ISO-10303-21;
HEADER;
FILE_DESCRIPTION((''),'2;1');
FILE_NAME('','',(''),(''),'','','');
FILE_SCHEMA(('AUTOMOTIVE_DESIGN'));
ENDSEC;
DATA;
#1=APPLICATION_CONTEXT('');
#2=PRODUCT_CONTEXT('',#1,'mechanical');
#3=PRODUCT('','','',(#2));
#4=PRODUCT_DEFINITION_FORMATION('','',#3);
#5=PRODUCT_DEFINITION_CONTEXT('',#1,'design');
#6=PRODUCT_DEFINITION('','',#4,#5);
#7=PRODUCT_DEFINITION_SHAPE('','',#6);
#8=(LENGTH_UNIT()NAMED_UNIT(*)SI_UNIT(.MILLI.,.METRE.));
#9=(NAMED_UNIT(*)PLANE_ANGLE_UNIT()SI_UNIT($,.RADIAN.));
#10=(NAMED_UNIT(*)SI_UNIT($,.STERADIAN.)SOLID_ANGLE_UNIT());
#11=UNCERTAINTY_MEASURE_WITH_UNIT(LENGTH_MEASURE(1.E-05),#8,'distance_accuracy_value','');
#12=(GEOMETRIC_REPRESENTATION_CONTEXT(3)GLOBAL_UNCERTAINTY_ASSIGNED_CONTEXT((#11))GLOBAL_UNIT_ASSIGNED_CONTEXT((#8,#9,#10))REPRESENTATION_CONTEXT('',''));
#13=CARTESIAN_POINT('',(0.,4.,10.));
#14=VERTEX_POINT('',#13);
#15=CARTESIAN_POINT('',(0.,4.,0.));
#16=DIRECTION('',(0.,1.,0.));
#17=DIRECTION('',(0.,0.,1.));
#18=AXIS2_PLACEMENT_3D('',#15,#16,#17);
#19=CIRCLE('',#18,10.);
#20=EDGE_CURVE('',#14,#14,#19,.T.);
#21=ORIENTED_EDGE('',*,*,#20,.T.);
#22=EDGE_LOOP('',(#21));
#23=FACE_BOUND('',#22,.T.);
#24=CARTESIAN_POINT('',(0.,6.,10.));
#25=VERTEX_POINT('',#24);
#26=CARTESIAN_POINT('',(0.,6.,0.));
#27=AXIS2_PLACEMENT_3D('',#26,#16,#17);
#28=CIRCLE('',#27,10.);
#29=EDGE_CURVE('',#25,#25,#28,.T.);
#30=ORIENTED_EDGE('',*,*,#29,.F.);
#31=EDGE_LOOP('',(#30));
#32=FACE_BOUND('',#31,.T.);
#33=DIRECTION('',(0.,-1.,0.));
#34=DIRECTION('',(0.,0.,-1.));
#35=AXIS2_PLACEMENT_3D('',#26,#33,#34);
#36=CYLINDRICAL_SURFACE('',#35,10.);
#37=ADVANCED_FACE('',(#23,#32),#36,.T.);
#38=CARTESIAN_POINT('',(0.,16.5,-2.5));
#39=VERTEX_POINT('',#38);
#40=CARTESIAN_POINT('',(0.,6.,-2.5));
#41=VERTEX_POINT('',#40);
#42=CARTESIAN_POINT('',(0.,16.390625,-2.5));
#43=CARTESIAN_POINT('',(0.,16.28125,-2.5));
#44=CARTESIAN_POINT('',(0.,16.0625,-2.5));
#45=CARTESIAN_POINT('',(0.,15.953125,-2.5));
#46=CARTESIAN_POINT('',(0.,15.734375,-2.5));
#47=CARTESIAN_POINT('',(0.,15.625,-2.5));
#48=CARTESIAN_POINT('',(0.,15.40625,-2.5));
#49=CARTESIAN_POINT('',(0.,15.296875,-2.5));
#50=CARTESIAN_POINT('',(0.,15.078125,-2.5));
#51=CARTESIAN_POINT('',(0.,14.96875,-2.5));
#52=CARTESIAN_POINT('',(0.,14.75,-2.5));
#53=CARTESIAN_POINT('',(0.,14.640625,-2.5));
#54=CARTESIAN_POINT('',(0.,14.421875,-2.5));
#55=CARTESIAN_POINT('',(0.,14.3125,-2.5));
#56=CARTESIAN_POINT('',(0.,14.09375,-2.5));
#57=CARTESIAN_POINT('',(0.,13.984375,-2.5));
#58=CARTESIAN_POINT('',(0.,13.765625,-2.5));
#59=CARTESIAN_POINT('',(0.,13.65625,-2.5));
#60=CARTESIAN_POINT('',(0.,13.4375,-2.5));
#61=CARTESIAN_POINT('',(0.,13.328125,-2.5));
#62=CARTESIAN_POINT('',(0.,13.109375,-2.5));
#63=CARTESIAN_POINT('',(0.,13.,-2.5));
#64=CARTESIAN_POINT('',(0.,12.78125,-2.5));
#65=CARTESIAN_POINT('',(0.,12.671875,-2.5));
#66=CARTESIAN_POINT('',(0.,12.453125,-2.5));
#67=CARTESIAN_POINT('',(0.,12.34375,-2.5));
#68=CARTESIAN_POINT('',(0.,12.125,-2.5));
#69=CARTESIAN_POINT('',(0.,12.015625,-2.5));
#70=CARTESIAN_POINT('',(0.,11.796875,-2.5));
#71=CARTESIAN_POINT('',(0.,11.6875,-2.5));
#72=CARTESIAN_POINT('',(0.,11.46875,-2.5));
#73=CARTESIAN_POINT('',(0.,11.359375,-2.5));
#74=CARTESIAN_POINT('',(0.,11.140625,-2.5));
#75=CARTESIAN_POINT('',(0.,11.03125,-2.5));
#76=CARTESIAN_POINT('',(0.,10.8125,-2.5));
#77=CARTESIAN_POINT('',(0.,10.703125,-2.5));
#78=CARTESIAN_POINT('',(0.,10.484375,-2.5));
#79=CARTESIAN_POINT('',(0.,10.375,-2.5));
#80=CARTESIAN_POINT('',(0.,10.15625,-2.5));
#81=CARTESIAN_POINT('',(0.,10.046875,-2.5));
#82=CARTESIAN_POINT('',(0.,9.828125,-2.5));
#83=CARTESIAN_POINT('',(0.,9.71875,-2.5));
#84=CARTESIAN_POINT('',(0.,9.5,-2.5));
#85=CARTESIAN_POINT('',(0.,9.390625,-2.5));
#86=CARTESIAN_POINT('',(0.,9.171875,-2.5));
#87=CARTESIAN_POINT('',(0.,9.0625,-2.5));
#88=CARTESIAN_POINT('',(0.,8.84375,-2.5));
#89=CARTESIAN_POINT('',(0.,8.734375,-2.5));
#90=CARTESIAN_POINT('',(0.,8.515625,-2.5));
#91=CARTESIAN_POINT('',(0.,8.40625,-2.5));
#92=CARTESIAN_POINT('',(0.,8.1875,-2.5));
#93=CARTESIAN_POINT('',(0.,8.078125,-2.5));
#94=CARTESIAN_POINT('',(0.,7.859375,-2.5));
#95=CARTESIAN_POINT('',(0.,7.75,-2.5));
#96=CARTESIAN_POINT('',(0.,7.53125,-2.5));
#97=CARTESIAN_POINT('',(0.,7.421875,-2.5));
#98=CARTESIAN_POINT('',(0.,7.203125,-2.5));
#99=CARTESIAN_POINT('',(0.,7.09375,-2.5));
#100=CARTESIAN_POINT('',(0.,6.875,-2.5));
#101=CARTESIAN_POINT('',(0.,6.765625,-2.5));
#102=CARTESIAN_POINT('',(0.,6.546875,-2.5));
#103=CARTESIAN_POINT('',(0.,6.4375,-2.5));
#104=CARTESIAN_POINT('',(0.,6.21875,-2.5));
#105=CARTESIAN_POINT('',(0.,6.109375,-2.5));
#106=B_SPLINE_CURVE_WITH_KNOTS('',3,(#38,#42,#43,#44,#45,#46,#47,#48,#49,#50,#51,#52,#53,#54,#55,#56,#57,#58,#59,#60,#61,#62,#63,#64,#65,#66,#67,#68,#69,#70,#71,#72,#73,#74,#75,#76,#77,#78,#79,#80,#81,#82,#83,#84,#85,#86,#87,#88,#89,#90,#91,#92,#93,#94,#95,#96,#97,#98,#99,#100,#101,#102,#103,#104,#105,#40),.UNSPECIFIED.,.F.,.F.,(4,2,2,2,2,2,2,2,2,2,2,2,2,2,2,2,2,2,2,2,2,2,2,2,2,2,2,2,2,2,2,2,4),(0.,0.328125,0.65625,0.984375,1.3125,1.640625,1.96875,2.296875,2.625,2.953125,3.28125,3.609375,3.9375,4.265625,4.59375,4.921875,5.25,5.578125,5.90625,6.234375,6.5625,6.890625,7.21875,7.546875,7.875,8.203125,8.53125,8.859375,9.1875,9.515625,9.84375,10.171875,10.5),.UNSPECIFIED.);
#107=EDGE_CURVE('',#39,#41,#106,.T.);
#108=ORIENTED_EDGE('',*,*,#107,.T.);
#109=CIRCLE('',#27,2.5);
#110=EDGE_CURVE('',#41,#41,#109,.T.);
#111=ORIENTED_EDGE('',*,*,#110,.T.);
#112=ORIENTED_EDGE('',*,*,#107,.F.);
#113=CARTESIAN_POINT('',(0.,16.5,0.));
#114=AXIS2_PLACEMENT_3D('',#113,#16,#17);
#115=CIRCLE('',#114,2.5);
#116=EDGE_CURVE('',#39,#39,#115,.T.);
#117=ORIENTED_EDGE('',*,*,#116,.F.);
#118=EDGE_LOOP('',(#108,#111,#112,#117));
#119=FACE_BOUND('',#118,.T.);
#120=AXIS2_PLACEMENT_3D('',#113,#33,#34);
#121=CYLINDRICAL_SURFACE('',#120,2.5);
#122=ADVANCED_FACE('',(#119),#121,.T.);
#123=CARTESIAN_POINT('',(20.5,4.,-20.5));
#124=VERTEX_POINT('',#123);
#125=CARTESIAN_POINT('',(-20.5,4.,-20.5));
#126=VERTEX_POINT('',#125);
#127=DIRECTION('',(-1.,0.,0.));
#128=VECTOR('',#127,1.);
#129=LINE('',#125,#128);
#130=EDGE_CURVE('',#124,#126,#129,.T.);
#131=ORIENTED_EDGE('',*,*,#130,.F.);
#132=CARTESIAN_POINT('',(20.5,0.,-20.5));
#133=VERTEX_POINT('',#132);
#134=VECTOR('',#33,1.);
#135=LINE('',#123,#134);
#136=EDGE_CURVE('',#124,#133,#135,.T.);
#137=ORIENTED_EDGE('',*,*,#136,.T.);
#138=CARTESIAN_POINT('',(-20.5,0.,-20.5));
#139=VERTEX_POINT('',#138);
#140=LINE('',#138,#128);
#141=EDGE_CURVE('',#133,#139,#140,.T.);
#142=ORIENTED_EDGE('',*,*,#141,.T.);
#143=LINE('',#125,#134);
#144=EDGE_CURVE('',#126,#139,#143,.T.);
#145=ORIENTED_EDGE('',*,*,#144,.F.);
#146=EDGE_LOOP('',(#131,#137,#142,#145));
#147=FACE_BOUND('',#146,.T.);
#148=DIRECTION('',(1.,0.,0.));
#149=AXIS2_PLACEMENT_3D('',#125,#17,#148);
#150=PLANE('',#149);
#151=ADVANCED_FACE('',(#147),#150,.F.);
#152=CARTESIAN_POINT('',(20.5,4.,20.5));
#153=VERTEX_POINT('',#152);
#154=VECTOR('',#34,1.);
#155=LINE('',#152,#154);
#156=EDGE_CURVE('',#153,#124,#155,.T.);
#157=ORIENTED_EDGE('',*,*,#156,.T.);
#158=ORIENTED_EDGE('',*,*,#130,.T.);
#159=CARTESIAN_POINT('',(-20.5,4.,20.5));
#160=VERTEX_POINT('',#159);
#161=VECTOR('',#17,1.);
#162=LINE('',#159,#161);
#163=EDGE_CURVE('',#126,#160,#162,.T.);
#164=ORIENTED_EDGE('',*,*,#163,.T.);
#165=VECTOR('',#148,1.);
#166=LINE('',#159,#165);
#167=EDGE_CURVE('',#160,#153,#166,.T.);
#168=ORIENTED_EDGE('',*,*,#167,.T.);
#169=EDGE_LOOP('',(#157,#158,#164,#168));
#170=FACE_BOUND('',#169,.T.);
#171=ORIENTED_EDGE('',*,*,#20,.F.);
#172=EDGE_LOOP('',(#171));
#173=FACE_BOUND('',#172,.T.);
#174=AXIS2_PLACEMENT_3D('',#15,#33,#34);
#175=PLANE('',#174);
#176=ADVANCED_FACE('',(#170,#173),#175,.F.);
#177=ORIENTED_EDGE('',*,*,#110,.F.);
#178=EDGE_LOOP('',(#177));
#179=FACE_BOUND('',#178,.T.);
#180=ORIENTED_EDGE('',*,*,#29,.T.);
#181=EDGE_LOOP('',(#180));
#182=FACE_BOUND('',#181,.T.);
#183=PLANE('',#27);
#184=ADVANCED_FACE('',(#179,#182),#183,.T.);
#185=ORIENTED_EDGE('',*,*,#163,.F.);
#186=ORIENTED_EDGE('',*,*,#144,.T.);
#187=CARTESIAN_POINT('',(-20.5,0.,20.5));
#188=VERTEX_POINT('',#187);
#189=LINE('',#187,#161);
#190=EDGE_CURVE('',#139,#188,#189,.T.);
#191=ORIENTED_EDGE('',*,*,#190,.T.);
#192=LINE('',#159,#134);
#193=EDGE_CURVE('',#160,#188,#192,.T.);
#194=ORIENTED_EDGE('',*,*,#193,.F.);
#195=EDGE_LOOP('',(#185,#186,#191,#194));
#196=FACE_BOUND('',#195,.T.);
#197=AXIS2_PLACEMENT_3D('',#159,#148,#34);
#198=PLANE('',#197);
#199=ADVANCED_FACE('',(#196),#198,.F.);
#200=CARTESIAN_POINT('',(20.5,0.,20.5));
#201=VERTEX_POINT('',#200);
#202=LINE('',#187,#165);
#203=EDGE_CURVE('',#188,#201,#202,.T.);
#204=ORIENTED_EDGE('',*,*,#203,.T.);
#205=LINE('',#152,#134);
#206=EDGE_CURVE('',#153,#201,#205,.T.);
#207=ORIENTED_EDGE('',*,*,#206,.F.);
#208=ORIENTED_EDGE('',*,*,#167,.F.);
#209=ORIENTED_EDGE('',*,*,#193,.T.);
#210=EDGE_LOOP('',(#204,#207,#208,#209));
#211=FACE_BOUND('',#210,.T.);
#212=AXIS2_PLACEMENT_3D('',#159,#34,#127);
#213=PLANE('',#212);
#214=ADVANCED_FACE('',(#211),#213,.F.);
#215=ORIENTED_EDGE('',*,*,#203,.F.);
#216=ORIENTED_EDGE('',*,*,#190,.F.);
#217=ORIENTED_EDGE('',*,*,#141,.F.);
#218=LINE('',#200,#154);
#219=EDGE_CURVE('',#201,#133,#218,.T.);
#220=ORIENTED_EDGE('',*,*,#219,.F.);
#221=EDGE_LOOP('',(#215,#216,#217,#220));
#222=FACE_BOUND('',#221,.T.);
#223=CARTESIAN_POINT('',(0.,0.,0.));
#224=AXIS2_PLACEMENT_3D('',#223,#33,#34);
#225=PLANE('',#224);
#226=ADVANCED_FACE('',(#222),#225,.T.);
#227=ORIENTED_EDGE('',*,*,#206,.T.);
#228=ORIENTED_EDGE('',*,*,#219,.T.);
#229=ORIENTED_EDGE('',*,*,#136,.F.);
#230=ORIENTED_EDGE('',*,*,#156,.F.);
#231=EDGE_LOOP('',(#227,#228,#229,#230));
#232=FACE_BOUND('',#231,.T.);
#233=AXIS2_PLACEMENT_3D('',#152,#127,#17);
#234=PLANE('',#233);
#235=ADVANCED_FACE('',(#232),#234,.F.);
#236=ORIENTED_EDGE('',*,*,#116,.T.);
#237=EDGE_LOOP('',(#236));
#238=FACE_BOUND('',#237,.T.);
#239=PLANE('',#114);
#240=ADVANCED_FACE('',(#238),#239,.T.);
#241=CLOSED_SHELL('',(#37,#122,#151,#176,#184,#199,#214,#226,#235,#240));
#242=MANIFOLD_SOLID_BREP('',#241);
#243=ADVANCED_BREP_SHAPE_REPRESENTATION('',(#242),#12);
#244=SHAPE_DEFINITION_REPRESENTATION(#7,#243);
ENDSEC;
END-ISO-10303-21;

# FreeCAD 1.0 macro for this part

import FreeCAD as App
import Part
import Sketcher
Q = App.Units.Quantity

doc = App.newDocument("Part")
params = doc.addObject("Spreadsheet::Sheet", "Params")
for row, (alias, value) in enumerate([
    ("sketch1_width", "41 mm"),
    ("pad1_length", "4 mm"),
    ("sketch2_diameter", "20 mm"),
    ("pad2_length", "2 mm"),
    ("sketch3_diameter", "5 mm"),
    ("pad3_length", "10.5 mm"),
], start=1):
    params.set(f"A{row}", alias)
    params.set(f"B{row}", "=" + value)
    params.setAlias(f"B{row}", alias)

body = doc.addObject("PartDesign::Body", "Body")

# Sketch on XZ plane
sketch1 = body.newObject("Sketcher::SketchObject", "Sketch")
sketch1.AttachmentSupport = (doc.getObject("XZ_Plane"), [""])
sketch1.MapMode = "FlatFace"
sketch1.addGeometry([
    Part.LineSegment(App.Vector(-20, -20, 0), App.Vector(-20, 20, 0)),
    Part.LineSegment(App.Vector(-20, 20, 0), App.Vector(20, 20, 0)),
    Part.LineSegment(App.Vector(20, 20, 0), App.Vector(20, -20, 0)),
    Part.LineSegment(App.Vector(20, -20, 0), App.Vector(-20, -20, 0)),
], False)
sketch1.addConstraint([
    Sketcher.Constraint("Coincident", 0, 2, 1, 1),
    Sketcher.Constraint("Coincident", 1, 2, 2, 1),
    Sketcher.Constraint("Coincident", 2, 2, 3, 1),
    Sketcher.Constraint("Coincident", 3, 2, 0, 1),
    Sketcher.Constraint("Vertical", 0),
    Sketcher.Constraint("Horizontal", 1),
    Sketcher.Constraint("Vertical", 2),
    Sketcher.Constraint("Horizontal", 3),
    Sketcher.Constraint("Symmetric", 0, 2, 2, 2, -1, 1),
    Sketcher.Constraint("Equal", 3, 0),
    Sketcher.Constraint("DistanceX", 1, 1, 1, 2, Q("41 mm")),
])
sketch1.setExpression("Constraints[10]", "Params.sketch1_width")
pad1 = body.newObject("PartDesign::Pad", "Pad")
pad1.Profile = sketch1
pad1.setExpression("Length", "Params.pad1_length")
pad1.Reversed = True

# Sketch on XZ plane
sketch2 = body.newObject("Sketcher::SketchObject", "Sketch001")
sketch2.AttachmentSupport = (doc.getObject("XZ_Plane"), [""])
sketch2.MapMode = "FlatFace"
sketch2.AttachmentOffset = App.Placement(App.Vector(0, 0, -4), App.Rotation())
sketch2.addGeometry(Part.Circle(App.Vector(0, 0, 0), App.Vector(0, 0, 1), 10), False)
sketch2.addConstraint([
    Sketcher.Constraint("Coincident", 0, 3, -1, 1),
    Sketcher.Constraint("Diameter", 0, Q("20 mm")),
])
sketch2.setExpression("Constraints[1]", "Params.sketch2_diameter")
pad2 = body.newObject("PartDesign::Pad", "Pad001")
pad2.Profile = sketch2
pad2.setExpression("Length", "Params.pad2_length")
pad2.Reversed = True

# Sketch on XZ plane
sketch3 = body.newObject("Sketcher::SketchObject", "Sketch002")
sketch3.AttachmentSupport = (doc.getObject("XZ_Plane"), [""])
sketch3.MapMode = "FlatFace"
sketch3.AttachmentOffset = App.Placement(App.Vector(0, 0, -6), App.Rotation())
sketch3.addGeometry(Part.Circle(App.Vector(0, 0, 0), App.Vector(0, 0, 1), 2.5), False)
sketch3.addConstraint([
    Sketcher.Constraint("Coincident", 0, 3, -1, 1),
    Sketcher.Constraint("Diameter", 0, Q("5 mm")),
])
sketch3.setExpression("Constraints[1]", "Params.sketch3_diameter")
pad3 = body.newObject("PartDesign::Pad", "Pad002")
pad3.Profile = sketch3
pad3.setExpression("Length", "Params.pad3_length")
pad3.Reversed = True

doc.recompute()
